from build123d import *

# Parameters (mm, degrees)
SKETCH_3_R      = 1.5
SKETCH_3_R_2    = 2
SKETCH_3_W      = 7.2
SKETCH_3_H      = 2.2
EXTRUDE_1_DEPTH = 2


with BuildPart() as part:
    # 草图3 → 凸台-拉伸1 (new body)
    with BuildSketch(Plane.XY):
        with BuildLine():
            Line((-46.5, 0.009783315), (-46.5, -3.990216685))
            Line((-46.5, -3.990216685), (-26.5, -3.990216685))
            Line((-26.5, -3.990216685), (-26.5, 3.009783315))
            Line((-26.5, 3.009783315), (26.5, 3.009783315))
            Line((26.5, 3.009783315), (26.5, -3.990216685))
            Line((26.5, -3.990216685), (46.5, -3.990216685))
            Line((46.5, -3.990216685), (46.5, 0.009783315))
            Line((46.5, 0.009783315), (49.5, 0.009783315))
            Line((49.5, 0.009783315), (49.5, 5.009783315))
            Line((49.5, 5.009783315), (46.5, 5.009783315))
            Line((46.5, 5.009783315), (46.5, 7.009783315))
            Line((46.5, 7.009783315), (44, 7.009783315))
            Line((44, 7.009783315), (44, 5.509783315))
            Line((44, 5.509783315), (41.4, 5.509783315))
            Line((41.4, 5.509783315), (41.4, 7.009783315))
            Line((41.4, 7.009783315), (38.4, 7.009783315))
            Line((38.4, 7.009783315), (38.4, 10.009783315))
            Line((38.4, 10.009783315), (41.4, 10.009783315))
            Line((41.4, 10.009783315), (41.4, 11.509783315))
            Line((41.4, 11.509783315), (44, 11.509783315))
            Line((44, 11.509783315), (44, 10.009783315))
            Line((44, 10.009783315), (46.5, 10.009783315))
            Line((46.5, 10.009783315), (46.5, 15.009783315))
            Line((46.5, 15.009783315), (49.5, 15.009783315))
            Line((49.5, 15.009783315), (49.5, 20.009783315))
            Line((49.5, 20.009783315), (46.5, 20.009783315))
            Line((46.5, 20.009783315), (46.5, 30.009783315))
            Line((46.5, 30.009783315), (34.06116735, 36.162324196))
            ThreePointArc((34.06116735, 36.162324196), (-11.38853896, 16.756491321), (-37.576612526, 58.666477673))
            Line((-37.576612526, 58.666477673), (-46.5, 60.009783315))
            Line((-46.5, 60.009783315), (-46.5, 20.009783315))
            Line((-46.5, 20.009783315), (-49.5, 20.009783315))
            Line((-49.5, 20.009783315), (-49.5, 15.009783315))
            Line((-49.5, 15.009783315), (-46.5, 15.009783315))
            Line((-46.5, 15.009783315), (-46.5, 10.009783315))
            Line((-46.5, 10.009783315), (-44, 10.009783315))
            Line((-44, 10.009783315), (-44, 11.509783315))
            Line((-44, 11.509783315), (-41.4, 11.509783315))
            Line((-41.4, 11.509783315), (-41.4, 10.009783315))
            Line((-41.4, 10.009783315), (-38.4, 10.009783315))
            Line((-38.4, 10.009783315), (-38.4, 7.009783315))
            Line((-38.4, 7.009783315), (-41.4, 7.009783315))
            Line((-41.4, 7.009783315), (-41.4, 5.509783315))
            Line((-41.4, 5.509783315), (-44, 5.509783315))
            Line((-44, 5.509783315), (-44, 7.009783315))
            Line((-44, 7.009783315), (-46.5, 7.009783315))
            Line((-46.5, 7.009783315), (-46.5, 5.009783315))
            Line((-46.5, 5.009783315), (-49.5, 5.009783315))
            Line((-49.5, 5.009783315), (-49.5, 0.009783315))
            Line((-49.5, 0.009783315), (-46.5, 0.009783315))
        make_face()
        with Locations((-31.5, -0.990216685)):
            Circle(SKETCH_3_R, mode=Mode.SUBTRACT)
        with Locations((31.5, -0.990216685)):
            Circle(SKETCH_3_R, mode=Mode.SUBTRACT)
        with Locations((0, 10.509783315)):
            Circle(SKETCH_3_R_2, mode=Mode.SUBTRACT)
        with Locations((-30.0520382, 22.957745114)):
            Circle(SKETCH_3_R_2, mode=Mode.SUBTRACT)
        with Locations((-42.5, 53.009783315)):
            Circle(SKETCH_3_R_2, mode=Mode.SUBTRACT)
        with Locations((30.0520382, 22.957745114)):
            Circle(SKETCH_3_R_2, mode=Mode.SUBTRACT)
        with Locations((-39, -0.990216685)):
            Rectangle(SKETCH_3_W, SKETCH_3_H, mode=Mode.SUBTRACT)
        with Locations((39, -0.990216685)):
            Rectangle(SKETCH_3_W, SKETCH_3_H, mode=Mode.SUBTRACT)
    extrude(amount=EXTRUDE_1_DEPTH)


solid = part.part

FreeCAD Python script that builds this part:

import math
import FreeCAD as App
import Part
import Sketcher


def add_polygon(sketch, points):
    """Adds a closed chain of lines whose ends are joined by coincident constraints."""
    first, n = sketch.GeometryCount, len(points)
    for a, b in zip(points, points[1:] + points[:1]):
        sketch.addGeometry(Part.LineSegment(App.Vector(*a, 0), App.Vector(*b, 0)), False)
    for i in range(n):
        sketch.addConstraint(Sketcher.Constraint("Coincident", first + i, 2, first + (i + 1) % n, 1))

doc = App.newDocument("Part")
body = doc.addObject("PartDesign::Body", "Body")

sketch1 = body.newObject("Sketcher::SketchObject", "Sketch")
sketch1.AttachmentSupport = (doc.getObject("XY_Plane"), [""])
sketch1.MapMode = "FlatFace"
sketch1.addGeometry(Part.LineSegment(App.Vector(-46.5, 0.009783, 0), App.Vector(-46.5, -3.990217, 0)), False)
sketch1.addGeometry(Part.LineSegment(App.Vector(-46.5, -3.990217, 0), App.Vector(-26.5, -3.990217, 0)), False)
sketch1.addGeometry(Part.LineSegment(App.Vector(-26.5, -3.990217, 0), App.Vector(-26.5, 3.009783, 0)), False)
sketch1.addGeometry(Part.LineSegment(App.Vector(-26.5, 3.009783, 0), App.Vector(26.5, 3.009783, 0)), False)
sketch1.addGeometry(Part.LineSegment(App.Vector(26.5, 3.009783, 0), App.Vector(26.5, -3.990217, 0)), False)
sketch1.addGeometry(Part.LineSegment(App.Vector(26.5, -3.990217, 0), App.Vector(46.5, -3.990217, 0)), False)
sketch1.addGeometry(Part.LineSegment(App.Vector(46.5, -3.990217, 0), App.Vector(46.5, 0.009783, 0)), False)
sketch1.addGeometry(Part.LineSegment(App.Vector(46.5, 0.009783, 0), App.Vector(49.5, 0.009783, 0)), False)
sketch1.addGeometry(Part.LineSegment(App.Vector(49.5, 0.009783, 0), App.Vector(49.5, 5.009783, 0)), False)
sketch1.addGeometry(Part.LineSegment(App.Vector(49.5, 5.009783, 0), App.Vector(46.5, 5.009783, 0)), False)
sketch1.addGeometry(Part.LineSegment(App.Vector(46.5, 5.009783, 0), App.Vector(46.5, 7.009783, 0)), False)
sketch1.addGeometry(Part.LineSegment(App.Vector(46.5, 7.009783, 0), App.Vector(44, 7.009783, 0)), False)
sketch1.addGeometry(Part.LineSegment(App.Vector(44, 7.009783, 0), App.Vector(44, 5.509783, 0)), False)
sketch1.addGeometry(Part.LineSegment(App.Vector(44, 5.509783, 0), App.Vector(41.4, 5.509783, 0)), False)
sketch1.addGeometry(Part.LineSegment(App.Vector(41.4, 5.509783, 0), App.Vector(41.4, 7.009783, 0)), False)
sketch1.addGeometry(Part.LineSegment(App.Vector(41.4, 7.009783, 0), App.Vector(38.4, 7.009783, 0)), False)
sketch1.addGeometry(Part.LineSegment(App.Vector(38.4, 7.009783, 0), App.Vector(38.4, 10.009783, 0)), False)
sketch1.addGeometry(Part.LineSegment(App.Vector(38.4, 10.009783, 0), App.Vector(41.4, 10.009783, 0)), False)
sketch1.addGeometry(Part.LineSegment(App.Vector(41.4, 10.009783, 0), App.Vector(41.4, 11.509783, 0)), False)
sketch1.addGeometry(Part.LineSegment(App.Vector(41.4, 11.509783, 0), App.Vector(44, 11.509783, 0)), False)
sketch1.addGeometry(Part.LineSegment(App.Vector(44, 11.509783, 0), App.Vector(44, 10.009783, 0)), False)
sketch1.addGeometry(Part.LineSegment(App.Vector(44, 10.009783, 0), App.Vector(46.5, 10.009783, 0)), False)
sketch1.addGeometry(Part.LineSegment(App.Vector(46.5, 10.009783, 0), App.Vector(46.5, 15.009783, 0)), False)
sketch1.addGeometry(Part.LineSegment(App.Vector(46.5, 15.009783, 0), App.Vector(49.5, 15.009783, 0)), False)
sketch1.addGeometry(Part.LineSegment(App.Vector(49.5, 15.009783, 0), App.Vector(49.5, 20.009783, 0)), False)
sketch1.addGeometry(Part.LineSegment(App.Vector(49.5, 20.009783, 0), App.Vector(46.5, 20.009783, 0)), False)
sketch1.addGeometry(Part.LineSegment(App.Vector(46.5, 20.009783, 0), App.Vector(46.5, 30.009783, 0)), False)
sketch1.addGeometry(Part.LineSegment(App.Vector(46.5, 30.009783, 0), App.Vector(34.061167, 36.162324, 0)), False)
sketch1.addGeometry(Part.ArcOfCircle(Part.Circle(App.Vector(0, 53.009783, 0), App.Vector(0, 0, 1), 38), math.radians(171.43911), math.radians(333.681912)), False)
sketch1.addGeometry(Part.LineSegment(App.Vector(-37.576613, 58.666478, 0), App.Vector(-46.5, 60.009783, 0)), False)
sketch1.addGeometry(Part.LineSegment(App.Vector(-46.5, 60.009783, 0), App.Vector(-46.5, 20.009783, 0)), False)
sketch1.addGeometry(Part.LineSegment(App.Vector(-46.5, 20.009783, 0), App.Vector(-49.5, 20.009783, 0)), False)
sketch1.addGeometry(Part.LineSegment(App.Vector(-49.5, 20.009783, 0), App.Vector(-49.5, 15.009783, 0)), False)
sketch1.addGeometry(Part.LineSegment(App.Vector(-49.5, 15.009783, 0), App.Vector(-46.5, 15.009783, 0)), False)
sketch1.addGeometry(Part.LineSegment(App.Vector(-46.5, 15.009783, 0), App.Vector(-46.5, 10.009783, 0)), False)
sketch1.addGeometry(Part.LineSegment(App.Vector(-46.5, 10.009783, 0), App.Vector(-44, 10.009783, 0)), False)
sketch1.addGeometry(Part.LineSegment(App.Vector(-44, 10.009783, 0), App.Vector(-44, 11.509783, 0)), False)
sketch1.addGeometry(Part.LineSegment(App.Vector(-44, 11.509783, 0), App.Vector(-41.4, 11.509783, 0)), False)
sketch1.addGeometry(Part.LineSegment(App.Vector(-41.4, 11.509783, 0), App.Vector(-41.4, 10.009783, 0)), False)
sketch1.addGeometry(Part.LineSegment(App.Vector(-41.4, 10.009783, 0), App.Vector(-38.4, 10.009783, 0)), False)
sketch1.addGeometry(Part.LineSegment(App.Vector(-38.4, 10.009783, 0), App.Vector(-38.4, 7.009783, 0)), False)
sketch1.addGeometry(Part.LineSegment(App.Vector(-38.4, 7.009783, 0), App.Vector(-41.4, 7.009783, 0)), False)
sketch1.addGeometry(Part.LineSegment(App.Vector(-41.4, 7.009783, 0), App.Vector(-41.4, 5.509783, 0)), False)
sketch1.addGeometry(Part.LineSegment(App.Vector(-41.4, 5.509783, 0), App.Vector(-44, 5.509783, 0)), False)
sketch1.addGeometry(Part.LineSegment(App.Vector(-44, 5.509783, 0), App.Vector(-44, 7.009783, 0)), False)
sketch1.addGeometry(Part.LineSegment(App.Vector(-44, 7.009783, 0), App.Vector(-46.5, 7.009783, 0)), False)
sketch1.addGeometry(Part.LineSegment(App.Vector(-46.5, 7.009783, 0), App.Vector(-46.5, 5.009783, 0)), False)
sketch1.addGeometry(Part.LineSegment(App.Vector(-46.5, 5.009783, 0), App.Vector(-49.5, 5.009783, 0)), False)
sketch1.addGeometry(Part.LineSegment(App.Vector(-49.5, 5.009783, 0), App.Vector(-49.5, 0.009783, 0)), False)
sketch1.addGeometry(Part.LineSegment(App.Vector(-49.5, 0.009783, 0), App.Vector(-46.5, 0.009783, 0)), False)
add_polygon(sketch1, [(-35.4, -2.090217), (-42.6, -2.090217), (-42.6, 0.109783), (-35.4, 0.109783)])
sketch1.addGeometry(Part.Circle(App.Vector(-31.5, -0.990217, 0), App.Vector(0, 0, 1), 1.5), False)
sketch1.addGeometry(Part.Circle(App.Vector(-30.052038, 22.957745, 0), App.Vector(0, 0, 1), 2), False)
sketch1.addGeometry(Part.Circle(App.Vector(0, 10.509783, 0), App.Vector(0, 0, 1), 2), False)
sketch1.addGeometry(Part.Circle(App.Vector(31.5, -0.990217, 0), App.Vector(0, 0, 1), 1.5), False)
add_polygon(sketch1, [(42.6, -2.090217), (35.4, -2.090217), (35.4, 0.109783), (42.6, 0.109783)])
sketch1.addGeometry(Part.Circle(App.Vector(30.052038, 22.957745, 0), App.Vector(0, 0, 1), 2), False)
sketch1.addGeometry(Part.Circle(App.Vector(-42.5, 53.009783, 0), App.Vector(0, 0, 1), 2), False)
sketch1.addConstraint([
    Sketcher.Constraint("Coincident", 0, 2, 1, 1),
    Sketcher.Constraint("Coincident", 1, 2, 2, 1),
    Sketcher.Constraint("Coincident", 2, 2, 3, 1),
    Sketcher.Constraint("Coincident", 3, 2, 4, 1),
    Sketcher.Constraint("Coincident", 4, 2, 5, 1),
    Sketcher.Constraint("Coincident", 5, 2, 6, 1),
    Sketcher.Constraint("Coincident", 6, 2, 7, 1),
    Sketcher.Constraint("Coincident", 7, 2, 8, 1),
    Sketcher.Constraint("Coincident", 8, 2, 9, 1),
    Sketcher.Constraint("Coincident", 9, 2, 10, 1),
    Sketcher.Constraint("Coincident", 10, 2, 11, 1),
    Sketcher.Constraint("Coincident", 11, 2, 12, 1),
    Sketcher.Constraint("Coincident", 12, 2, 13, 1),
    Sketcher.Constraint("Coincident", 13, 2, 14, 1),
    Sketcher.Constraint("Coincident", 14, 2, 15, 1),
    Sketcher.Constraint("Coincident", 15, 2, 16, 1),
    Sketcher.Constraint("Coincident", 16, 2, 17, 1),
    Sketcher.Constraint("Coincident", 17, 2, 18, 1),
    Sketcher.Constraint("Coincident", 18, 2, 19, 1),
    Sketcher.Constraint("Coincident", 19, 2, 20, 1),
    Sketcher.Constraint("Coincident", 20, 2, 21, 1),
    Sketcher.Constraint("Coincident", 21, 2, 22, 1),
    Sketcher.Constraint("Coincident", 22, 2, 23, 1),
    Sketcher.Constraint("Coincident", 23, 2, 24, 1),
    Sketcher.Constraint("Coincident", 24, 2, 25, 1),
    Sketcher.Constraint("Coincident", 25, 2, 26, 1),
    Sketcher.Constraint("Coincident", 26, 2, 27, 1),
    Sketcher.Constraint("Coincident", 27, 2, 28, 2),
    Sketcher.Constraint("Coincident", 28, 1, 29, 1),
    Sketcher.Constraint("Coincident", 29, 2, 30, 1),
    Sketcher.Constraint("Coincident", 30, 2, 31, 1),
    Sketcher.Constraint("Coincident", 31, 2, 32, 1),
    Sketcher.Constraint("Coincident", 32, 2, 33, 1),
    Sketcher.Constraint("Coincident", 33, 2, 34, 1),
    Sketcher.Constraint("Coincident", 34, 2, 35, 1),
    Sketcher.Constraint("Coincident", 35, 2, 36, 1),
    Sketcher.Constraint("Coincident", 36, 2, 37, 1),
    Sketcher.Constraint("Coincident", 37, 2, 38, 1),
    Sketcher.Constraint("Coincident", 38, 2, 39, 1),
    Sketcher.Constraint("Coincident", 39, 2, 40, 1),
    Sketcher.Constraint("Coincident", 40, 2, 41, 1),
    Sketcher.Constraint("Coincident", 41, 2, 42, 1),
    Sketcher.Constraint("Coincident", 42, 2, 43, 1),
    Sketcher.Constraint("Coincident", 43, 2, 44, 1),
    Sketcher.Constraint("Coincident", 44, 2, 45, 1),
    Sketcher.Constraint("Coincident", 45, 2, 46, 1),
    Sketcher.Constraint("Coincident", 46, 2, 47, 1),
    Sketcher.Constraint("Coincident", 47, 2, 48, 1),
    Sketcher.Constraint("Coincident", 48, 2, 49, 1),
    Sketcher.Constraint("Coincident", 49, 2, 0, 1),
    Sketcher.Constraint("Vertical", 0),
    Sketcher.Constraint("Horizontal", 1),
    Sketcher.Constraint("Vertical", 2),
    Sketcher.Constraint("Horizontal", 3),
    Sketcher.Constraint("Vertical", 4),
    Sketcher.Constraint("Horizontal", 5),
    Sketcher.Constraint("Vertical", 6),
    Sketcher.Constraint("Horizontal", 7),
    Sketcher.Constraint("Vertical", 8),
    Sketcher.Constraint("Horizontal", 9),
    Sketcher.Constraint("Vertical", 10),
    Sketcher.Constraint("Horizontal", 11),
    Sketcher.Constraint("Vertical", 12),
    Sketcher.Constraint("Horizontal", 13),
    Sketcher.Constraint("Vertical", 14),
    Sketcher.Constraint("Horizontal", 15),
    Sketcher.Constraint("Vertical", 16),
    Sketcher.Constraint("Horizontal", 17),
    Sketcher.Constraint("Vertical", 18),
    Sketcher.Constraint("Horizontal", 19),
    Sketcher.Constraint("Vertical", 20),
    Sketcher.Constraint("Horizontal", 21),
    Sketcher.Constraint("Vertical", 22),
    Sketcher.Constraint("Horizontal", 23),
    Sketcher.Constraint("Vertical", 24),
    Sketcher.Constraint("Horizontal", 25),
    Sketcher.Constraint("Vertical", 26),
    Sketcher.Constraint("Vertical", 30),
    Sketcher.Constraint("Horizontal", 31),
    Sketcher.Constraint("Vertical", 32),
    Sketcher.Constraint("Horizontal", 33),
    Sketcher.Constraint("Vertical", 34),
    Sketcher.Constraint("Horizontal", 35),
    Sketcher.Constraint("Vertical", 36),
    Sketcher.Constraint("Horizontal", 37),
    Sketcher.Constraint("Vertical", 38),
    Sketcher.Constraint("Horizontal", 39),
    Sketcher.Constraint("Vertical", 40),
    Sketcher.Constraint("Horizontal", 41),
    Sketcher.Constraint("Vertical", 42),
    Sketcher.Constraint("Horizontal", 43),
    Sketcher.Constraint("Vertical", 44),
    Sketcher.Constraint("Horizontal", 45),
    Sketcher.Constraint("Vertical", 46),
    Sketcher.Constraint("Horizontal", 47),
    Sketcher.Constraint("Vertical", 48),
    Sketcher.Constraint("Horizontal", 49),
    Sketcher.Constraint("Horizontal", 50),
    Sketcher.Constraint("Vertical", 51),
    Sketcher.Constraint("Horizontal", 52),
    Sketcher.Constraint("Vertical", 53),
    Sketcher.Constraint("Horizontal", 58),
    Sketcher.Constraint("Vertical", 59),
    Sketcher.Constraint("Horizontal", 60),
    Sketcher.Constraint("Vertical", 61),
    Sketcher.Constraint("Equal", 55, 56),
    Sketcher.Constraint("Equal", 54, 57),
    Sketcher.Constraint("Equal", 56, 62),
    Sketcher.Constraint("Equal", 62, 63),
    Sketcher.Constraint("Symmetric", 54, 3, 57, 3, -2),
    Sketcher.Constraint("Symmetric", 55, 3, 62, 3, -2),
    Sketcher.Constraint("Symmetric", 1, 2, 4, 2, -2),
    Sketcher.Constraint("Symmetric", 25, 2, 30, 2, -2),
    Sketcher.Constraint("Symmetric", 23, 2, 32, 2, -2),
    Sketcher.Constraint("Symmetric", 21, 2, 34, 2, -2),
    Sketcher.Constraint("Symmetric", 19, 2, 36, 2, -2),
    Sketcher.Constraint("Symmetric", 17, 2, 38, 2, -2),
    Sketcher.Constraint("Symmetric", 15, 2, 40, 2, -2),
    Sketcher.Constraint("Symmetric", 13, 2, 42, 2, -2),
    Sketcher.Constraint("Symmetric", 11, 2, 44, 2, -2),
    Sketcher.Constraint("Symmetric", 9, 2, 46, 2, -2),
    Sketcher.Constraint("Symmetric", 7, 2, 48, 2, -2),
    Sketcher.Constraint("Symmetric", 53, 2, 58, 2, -2),
    Sketcher.Constraint("Symmetric", 51, 2, 60, 2, -2),
    Sketcher.Constraint("PointOnObject", 28, 3, -2),
    Sketcher.Constraint("PointOnObject", 56, 3, -2),
    Sketcher.Constraint("Horizontal", 28, 3, 63, 3),
    Sketcher.Constraint("Horizontal", 11, 2, 14, 2),
    Sketcher.Constraint("Horizontal", 17, 2, 20, 2),
    Sketcher.Constraint("Vertical", 6, 2, 9, 2),
    Sketcher.Constraint("Vertical", 14, 2, 17, 2),
    Sketcher.Constraint("Vertical", 12, 2, 19, 2),
    Sketcher.Constraint("Vertical", 10, 2, 21, 2),
    Sketcher.Constraint("Vertical", 8, 2, 23, 2),
    Sketcher.Constraint("Vertical", 22, 2, 25, 2),
    Sketcher.Constraint("Vertical", 0, 2, 29, 2),
    Sketcher.Constraint("Equal", 9, 15),
    Sketcher.Constraint("Equal", 49, 16),
    Sketcher.Constraint("Equal", 14, 18),
    Sketcher.Constraint("Equal", 8, 22),
    Sketcher.Constraint("Equal", 22, 24),
    Sketcher.Constraint("Diameter", 54, 3.0),
    Sketcher.Constraint("Diameter", 55, 4.0),
    Sketcher.Constraint("Radius", 28, 38.0),
    Sketcher.Constraint("DistanceX", 1, 1, 1, 2, 20.0),
    Sketcher.Constraint("DistanceX", 3, 1, 3, 2, 53.0),
    Sketcher.Constraint("DistanceX", 7, 1, 7, 2, 3.0),
    Sketcher.Constraint("DistanceY", 0, 2, 0, 1, 4.0),
    Sketcher.Constraint("DistanceY", 2, 1, 2, 2, 7.0),
    Sketcher.Constraint("DistanceY", 8, 1, 8, 2, 5.0),
    Sketcher.Constraint("DistanceY", 10, 1, 10, 2, 2.0),
    Sketcher.Constraint("DistanceY", 26, 1, 26, 2, 10.0),
    Sketcher.Constraint("DistanceY", 30, 2, 30, 1, 40.0),
    Sketcher.Constraint("DistanceX", 11, 2, 11, 1, 2.5),
    Sketcher.Constraint("DistanceX", 13, 2, 13, 1, 2.6),
    Sketcher.Constraint("DistanceX", 50, 2, 50, 1, 7.2),
    Sketcher.Constraint("DistanceY", 12, 2, 12, 1, 1.5),
    Sketcher.Constraint("DistanceY", 51, 1, 51, 2, 2.2),
    Sketcher.Constraint("DistanceX", 54, 3, -1, 1, 31.5),
    Sketcher.Constraint("DistanceX", 63, 3, -1, 1, 42.5),
    Sketcher.Constraint("DistanceX", 50, 2, -1, 1, 42.6),
    Sketcher.Constraint("Distance", 27, 13.877259),
    Sketcher.Constraint("DistanceX", 55, 3, -1, 1, 30.052038),
    Sketcher.Constraint("DistanceY", -1, 1, 28, 3, 53.009783),
    Sketcher.Constraint("DistanceY", 54, 3, -1, 1, 0.990217),
    Sketcher.Constraint("DistanceY", -1, 1, 55, 3, 22.957745),
    Sketcher.Constraint("DistanceY", -1, 1, 56, 3, 10.509783),
    Sketcher.Constraint("DistanceX", -1, 1, 27, 2, 34.061167),
    Sketcher.Constraint("DistanceX", 28, 1, -1, 1, 37.576613),
    Sketcher.Constraint("DistanceY", 50, 2, -1, 1, 2.090217),
])
pad1 = body.newObject("PartDesign::Pad", "Pad")
pad1.Profile = sketch1
pad1.Length = 2

doc.recompute()
